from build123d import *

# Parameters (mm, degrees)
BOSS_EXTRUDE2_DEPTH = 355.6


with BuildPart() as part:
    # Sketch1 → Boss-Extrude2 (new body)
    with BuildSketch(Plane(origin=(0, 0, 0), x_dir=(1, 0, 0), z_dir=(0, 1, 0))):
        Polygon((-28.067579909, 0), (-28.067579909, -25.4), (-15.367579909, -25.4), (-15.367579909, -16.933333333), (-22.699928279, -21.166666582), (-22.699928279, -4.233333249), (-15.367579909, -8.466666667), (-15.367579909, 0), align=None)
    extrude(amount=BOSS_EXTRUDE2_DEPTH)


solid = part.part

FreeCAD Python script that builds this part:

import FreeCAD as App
import Part
import Sketcher
Q = App.Units.Quantity


def add_polygon(sketch, points):
    """Adds a closed chain of lines whose ends are joined by coincident constraints."""
    first, n = sketch.GeometryCount, len(points)
    for a, b in zip(points, points[1:] + points[:1]):
        sketch.addGeometry(Part.LineSegment(App.Vector(*a, 0), App.Vector(*b, 0)), False)
    for i in range(n):
        sketch.addConstraint(Sketcher.Constraint("Coincident", first + i, 2, first + (i + 1) % n, 1))

doc = App.newDocument("Part")
body = doc.addObject("PartDesign::Body", "Body")

sketch1 = body.newObject("Sketcher::SketchObject", "Sketch")
sketch1.AttachmentSupport = (doc.getObject("XZ_Plane"), [""])
sketch1.MapMode = "FlatFace"
add_polygon(sketch1, [(-28.06758, 0), (-28.06758, 25.4), (-15.36758, 25.4), (-15.36758, 16.933333), (-22.699928, 21.166667), (-22.699928, 4.233333), (-15.36758, 8.466667), (-15.36758, 0)])
sketch1.addConstraint([
    Sketcher.Constraint("Vertical", 0),
    Sketcher.Constraint("Horizontal", 1),
    Sketcher.Constraint("Vertical", 2),
    Sketcher.Constraint("Vertical", 4),
    Sketcher.Constraint("Vertical", 6),
    Sketcher.Constraint("Horizontal", 7),
    Sketcher.Constraint("PointOnObject", 6, 2, -1),
    Sketcher.Constraint("Vertical", 2, 2, 5, 2),
    Sketcher.Constraint("Equal", 2, 6),
    Sketcher.Constraint("Equal", 3, 5),
    Sketcher.Constraint("DistanceY", 0, 1, 0, 2, Q("1 in")),
    Sketcher.Constraint("DistanceX", 1, 1, 1, 2, Q("0.5 in")),
    Sketcher.Constraint("Angle", 3, Q("150 deg")),
    Sketcher.Constraint("DistanceY", 4, 2, 2, 2, Q("0.5 in")),
    Sketcher.Constraint("DistanceY", 2, 2, 2, 1, Q("8.466667 mm")),
    Sketcher.Constraint("DistanceX", 0, 2, -1, 1, Q("28.06758 mm")),
])
pad1 = body.newObject("PartDesign::Pad", "Pad")
pad1.Profile = sketch1
pad1.Length = Q("14 in")
pad1.Reversed = True

doc.recompute()
